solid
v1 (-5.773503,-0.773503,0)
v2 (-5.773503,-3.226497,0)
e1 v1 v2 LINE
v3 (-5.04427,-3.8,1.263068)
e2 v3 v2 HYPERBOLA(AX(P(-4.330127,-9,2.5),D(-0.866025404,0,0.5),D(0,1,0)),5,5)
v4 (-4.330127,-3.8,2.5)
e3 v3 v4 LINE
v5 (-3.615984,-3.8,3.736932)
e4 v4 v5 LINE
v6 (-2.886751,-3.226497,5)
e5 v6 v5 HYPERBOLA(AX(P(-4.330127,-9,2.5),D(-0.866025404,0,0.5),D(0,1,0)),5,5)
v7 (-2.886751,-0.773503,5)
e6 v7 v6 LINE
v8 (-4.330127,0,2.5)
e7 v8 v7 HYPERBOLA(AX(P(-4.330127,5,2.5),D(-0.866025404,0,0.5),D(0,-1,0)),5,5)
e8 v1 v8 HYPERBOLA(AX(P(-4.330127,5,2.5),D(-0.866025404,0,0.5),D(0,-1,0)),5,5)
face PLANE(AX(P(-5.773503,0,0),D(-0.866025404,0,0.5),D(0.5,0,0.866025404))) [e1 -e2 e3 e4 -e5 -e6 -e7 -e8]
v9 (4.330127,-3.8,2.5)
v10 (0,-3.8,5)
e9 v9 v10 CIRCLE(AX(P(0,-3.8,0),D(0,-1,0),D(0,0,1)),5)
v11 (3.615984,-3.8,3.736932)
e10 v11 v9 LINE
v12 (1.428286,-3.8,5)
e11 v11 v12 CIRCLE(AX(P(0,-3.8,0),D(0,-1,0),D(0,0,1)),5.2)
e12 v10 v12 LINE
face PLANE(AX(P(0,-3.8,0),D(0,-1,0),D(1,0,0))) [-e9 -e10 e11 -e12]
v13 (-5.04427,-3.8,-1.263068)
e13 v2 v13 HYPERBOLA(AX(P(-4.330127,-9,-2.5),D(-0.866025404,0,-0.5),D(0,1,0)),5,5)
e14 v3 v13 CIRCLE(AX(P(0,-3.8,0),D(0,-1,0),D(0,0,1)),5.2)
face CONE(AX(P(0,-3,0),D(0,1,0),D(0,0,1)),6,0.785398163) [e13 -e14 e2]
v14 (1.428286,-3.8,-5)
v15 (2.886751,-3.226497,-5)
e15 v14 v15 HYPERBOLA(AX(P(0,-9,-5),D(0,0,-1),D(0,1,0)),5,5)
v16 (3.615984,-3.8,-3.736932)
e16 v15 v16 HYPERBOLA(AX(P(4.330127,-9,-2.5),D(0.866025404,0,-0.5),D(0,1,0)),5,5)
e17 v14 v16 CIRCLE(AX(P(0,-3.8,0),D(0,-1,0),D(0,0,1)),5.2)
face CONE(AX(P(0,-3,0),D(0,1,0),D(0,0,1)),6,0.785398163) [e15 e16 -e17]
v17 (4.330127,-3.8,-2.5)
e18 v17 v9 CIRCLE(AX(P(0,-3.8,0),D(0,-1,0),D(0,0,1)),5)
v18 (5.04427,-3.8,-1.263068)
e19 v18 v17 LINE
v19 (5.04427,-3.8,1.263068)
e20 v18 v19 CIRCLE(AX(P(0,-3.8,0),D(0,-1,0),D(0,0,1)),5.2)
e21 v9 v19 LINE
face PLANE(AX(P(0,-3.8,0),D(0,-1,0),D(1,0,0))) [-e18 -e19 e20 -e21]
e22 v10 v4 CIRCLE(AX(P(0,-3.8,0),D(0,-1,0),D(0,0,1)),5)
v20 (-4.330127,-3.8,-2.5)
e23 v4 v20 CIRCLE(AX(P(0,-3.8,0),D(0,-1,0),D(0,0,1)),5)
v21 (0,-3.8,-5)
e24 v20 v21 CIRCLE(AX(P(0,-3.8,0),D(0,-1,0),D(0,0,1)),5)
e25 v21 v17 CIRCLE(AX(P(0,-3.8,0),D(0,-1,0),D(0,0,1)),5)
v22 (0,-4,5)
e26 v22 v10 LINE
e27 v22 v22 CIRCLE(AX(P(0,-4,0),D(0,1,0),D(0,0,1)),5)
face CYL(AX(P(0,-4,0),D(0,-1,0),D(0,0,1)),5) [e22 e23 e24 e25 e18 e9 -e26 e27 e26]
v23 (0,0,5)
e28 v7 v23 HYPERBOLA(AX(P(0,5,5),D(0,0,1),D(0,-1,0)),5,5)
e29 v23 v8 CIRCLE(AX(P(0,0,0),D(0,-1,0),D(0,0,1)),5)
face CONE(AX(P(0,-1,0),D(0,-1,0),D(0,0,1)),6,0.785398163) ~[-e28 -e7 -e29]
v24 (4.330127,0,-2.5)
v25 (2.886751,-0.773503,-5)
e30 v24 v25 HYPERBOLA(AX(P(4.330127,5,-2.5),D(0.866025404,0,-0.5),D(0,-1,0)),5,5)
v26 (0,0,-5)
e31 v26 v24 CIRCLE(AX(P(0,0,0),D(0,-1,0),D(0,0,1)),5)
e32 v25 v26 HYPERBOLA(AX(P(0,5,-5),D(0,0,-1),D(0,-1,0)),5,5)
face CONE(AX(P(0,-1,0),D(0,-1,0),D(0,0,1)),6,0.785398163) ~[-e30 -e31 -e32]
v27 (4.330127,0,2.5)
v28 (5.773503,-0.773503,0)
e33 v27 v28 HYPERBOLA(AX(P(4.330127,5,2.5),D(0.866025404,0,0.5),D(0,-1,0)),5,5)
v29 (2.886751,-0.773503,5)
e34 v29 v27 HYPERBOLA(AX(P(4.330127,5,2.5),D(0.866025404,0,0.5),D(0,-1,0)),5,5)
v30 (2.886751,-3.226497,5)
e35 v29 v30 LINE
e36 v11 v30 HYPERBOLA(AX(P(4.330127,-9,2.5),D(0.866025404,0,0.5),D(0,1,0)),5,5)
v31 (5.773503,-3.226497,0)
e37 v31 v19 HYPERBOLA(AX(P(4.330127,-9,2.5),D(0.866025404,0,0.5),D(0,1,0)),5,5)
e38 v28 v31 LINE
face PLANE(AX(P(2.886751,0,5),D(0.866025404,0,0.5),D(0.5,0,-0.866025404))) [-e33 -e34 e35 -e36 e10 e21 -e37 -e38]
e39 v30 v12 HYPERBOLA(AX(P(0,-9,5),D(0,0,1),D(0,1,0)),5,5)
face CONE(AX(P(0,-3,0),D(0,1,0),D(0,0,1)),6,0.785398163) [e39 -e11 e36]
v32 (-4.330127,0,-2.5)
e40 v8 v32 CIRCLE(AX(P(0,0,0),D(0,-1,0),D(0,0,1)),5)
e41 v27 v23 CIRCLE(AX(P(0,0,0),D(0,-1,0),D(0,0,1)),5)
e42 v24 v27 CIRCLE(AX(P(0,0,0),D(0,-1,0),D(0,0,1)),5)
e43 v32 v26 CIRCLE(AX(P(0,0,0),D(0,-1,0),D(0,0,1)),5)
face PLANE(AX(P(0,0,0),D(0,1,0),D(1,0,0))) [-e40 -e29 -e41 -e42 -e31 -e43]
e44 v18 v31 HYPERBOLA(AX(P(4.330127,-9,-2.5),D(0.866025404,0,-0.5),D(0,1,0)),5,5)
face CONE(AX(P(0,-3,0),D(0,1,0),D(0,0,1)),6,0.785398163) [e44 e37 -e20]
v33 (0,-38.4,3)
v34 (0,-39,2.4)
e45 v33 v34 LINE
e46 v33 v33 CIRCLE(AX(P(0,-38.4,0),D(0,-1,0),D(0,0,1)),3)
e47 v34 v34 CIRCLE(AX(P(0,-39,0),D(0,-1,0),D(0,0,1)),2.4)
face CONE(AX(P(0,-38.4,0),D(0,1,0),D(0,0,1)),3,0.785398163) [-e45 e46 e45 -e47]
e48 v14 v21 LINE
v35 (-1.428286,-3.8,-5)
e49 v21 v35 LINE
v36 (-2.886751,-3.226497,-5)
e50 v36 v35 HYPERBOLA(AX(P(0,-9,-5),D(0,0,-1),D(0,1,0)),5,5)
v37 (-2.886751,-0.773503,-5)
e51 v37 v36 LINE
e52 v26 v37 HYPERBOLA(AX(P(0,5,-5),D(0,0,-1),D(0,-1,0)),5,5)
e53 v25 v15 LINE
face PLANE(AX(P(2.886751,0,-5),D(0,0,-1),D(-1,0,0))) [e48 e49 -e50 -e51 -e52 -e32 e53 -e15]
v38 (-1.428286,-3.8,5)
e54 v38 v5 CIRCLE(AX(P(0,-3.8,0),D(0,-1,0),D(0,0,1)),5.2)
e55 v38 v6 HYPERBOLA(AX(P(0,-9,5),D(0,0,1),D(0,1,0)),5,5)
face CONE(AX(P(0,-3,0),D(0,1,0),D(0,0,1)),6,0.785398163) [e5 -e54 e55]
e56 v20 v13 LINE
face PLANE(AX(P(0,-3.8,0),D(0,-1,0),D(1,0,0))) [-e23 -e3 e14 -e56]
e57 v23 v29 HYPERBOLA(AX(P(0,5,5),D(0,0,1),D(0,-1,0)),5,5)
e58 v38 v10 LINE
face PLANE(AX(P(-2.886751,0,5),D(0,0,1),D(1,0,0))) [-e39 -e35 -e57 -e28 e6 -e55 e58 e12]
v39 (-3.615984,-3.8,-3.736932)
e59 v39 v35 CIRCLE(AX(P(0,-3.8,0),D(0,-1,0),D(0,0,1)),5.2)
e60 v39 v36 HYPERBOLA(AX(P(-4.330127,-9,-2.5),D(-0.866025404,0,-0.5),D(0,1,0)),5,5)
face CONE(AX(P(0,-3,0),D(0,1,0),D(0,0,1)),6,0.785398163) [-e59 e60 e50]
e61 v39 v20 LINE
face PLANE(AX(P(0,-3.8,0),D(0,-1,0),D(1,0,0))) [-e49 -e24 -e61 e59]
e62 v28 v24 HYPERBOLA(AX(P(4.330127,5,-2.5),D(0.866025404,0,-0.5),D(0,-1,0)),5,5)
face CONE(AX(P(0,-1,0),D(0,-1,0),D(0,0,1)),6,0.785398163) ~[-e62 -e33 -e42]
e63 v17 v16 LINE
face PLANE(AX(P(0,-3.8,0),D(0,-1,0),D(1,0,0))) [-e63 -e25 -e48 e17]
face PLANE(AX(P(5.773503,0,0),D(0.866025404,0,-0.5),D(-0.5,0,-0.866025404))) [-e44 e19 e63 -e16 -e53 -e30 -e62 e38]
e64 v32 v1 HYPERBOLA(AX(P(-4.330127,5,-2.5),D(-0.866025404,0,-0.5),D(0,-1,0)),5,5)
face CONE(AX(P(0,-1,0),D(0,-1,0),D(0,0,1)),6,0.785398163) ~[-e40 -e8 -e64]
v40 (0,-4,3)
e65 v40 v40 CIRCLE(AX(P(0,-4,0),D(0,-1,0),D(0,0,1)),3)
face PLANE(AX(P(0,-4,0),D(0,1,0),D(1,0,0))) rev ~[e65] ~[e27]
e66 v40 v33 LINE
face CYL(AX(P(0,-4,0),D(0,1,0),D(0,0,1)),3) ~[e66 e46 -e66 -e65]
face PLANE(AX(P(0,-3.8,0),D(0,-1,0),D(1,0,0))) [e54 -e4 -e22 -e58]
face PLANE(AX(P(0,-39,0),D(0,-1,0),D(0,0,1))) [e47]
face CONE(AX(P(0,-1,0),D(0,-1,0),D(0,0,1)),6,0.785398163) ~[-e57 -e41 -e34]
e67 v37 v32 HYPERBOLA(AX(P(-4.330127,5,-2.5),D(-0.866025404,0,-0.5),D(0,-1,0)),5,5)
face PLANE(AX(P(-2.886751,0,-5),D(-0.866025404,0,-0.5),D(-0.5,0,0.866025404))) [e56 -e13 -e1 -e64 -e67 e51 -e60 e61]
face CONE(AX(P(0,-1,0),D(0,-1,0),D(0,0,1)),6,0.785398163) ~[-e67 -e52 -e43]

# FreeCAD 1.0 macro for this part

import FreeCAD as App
import Part
import Sketcher
Q = App.Units.Quantity


def edges_at(feature, points):
    """Names of the edges that pass closest to the given points."""
    edges = feature.Shape.Edges
    near = lambda p: min(range(len(edges)), key=lambda i: edges[i].distToShape(Part.Vertex(*p))[0])
    return sorted({f"Edge{near(p) + 1}" for p in points})


def add_polygon(sketch, points):
    """Adds a closed chain of lines whose ends are joined by coincident constraints."""
    first, n = sketch.GeometryCount, len(points)
    for a, b in zip(points, points[1:] + points[:1]):
        sketch.addGeometry(Part.LineSegment(App.Vector(*a, 0), App.Vector(*b, 0)), False)
    for i in range(n):
        sketch.addConstraint(Sketcher.Constraint("Coincident", first + i, 2, first + (i + 1) % n, 1))

doc = App.newDocument("Part")
body = doc.addObject("PartDesign::Body", "Body")

# Sketch on XZ plane
sketch1 = body.newObject("Sketcher::SketchObject", "Sketch")
sketch1.AttachmentSupport = (doc.getObject("XZ_Plane"), [""])
sketch1.MapMode = "FlatFace"
add_polygon(sketch1, [(5.773503, 0), (2.886751, -5), (-2.886751, -5), (-5.773503, 0), (-2.886751, 5), (2.886751, 5)])  # lines 0-5
sketch1.addConstraint([
    Sketcher.Constraint("Horizontal", 1),
    Sketcher.Constraint("Horizontal", 4),
    Sketcher.Constraint("Symmetric", 0, 2, 3, 2, -1, 1),
    Sketcher.Constraint("Symmetric", 2, 2, 5, 2, -1, 1),
    Sketcher.Constraint("PointOnObject", 2, 2, -1),
    Sketcher.Constraint("Parallel", 2, 5),
    Sketcher.Constraint("Vertical", 1, 2, 3, 2),
    Sketcher.Constraint("Angle", 0, Q("-120 deg")),
    Sketcher.Constraint("DistanceY", 0, 2, -1, 1, Q("5 mm")),
    Sketcher.Constraint("DistanceX", 1, 2, 1, 1, Q("5.773503 mm")),
])
pad1 = body.newObject("PartDesign::Pad", "Pad")
pad1.Profile = sketch1
pad1.Length = 4

# Sketch on YZ plane
sketch2 = body.newObject("Sketcher::SketchObject", "Sketch001")
sketch2.AttachmentSupport = (doc.getObject("YZ_Plane"), [""])
sketch2.MapMode = "FlatFace"
add_polygon(sketch2, [(0, 5), (0, 6), (-1, 6)])  # lines 0-2
add_polygon(sketch2, [(-4, 5), (-3, 6), (-4, 6)])  # lines 3-5
sketch2.addConstraint([
    Sketcher.Constraint("Vertical", 0),
    Sketcher.Constraint("Horizontal", 1),
    Sketcher.Constraint("Horizontal", 4),
    Sketcher.Constraint("Vertical", 5),
    Sketcher.Constraint("PointOnObject", 0, 2, -2),
    Sketcher.Constraint("Perpendicular", 2, 3),
    Sketcher.Constraint("Horizontal", 1, 2, 3, 2),
    Sketcher.Constraint("Horizontal", 2, 2, 5, 2),
    Sketcher.Constraint("Equal", 1, 4),
    Sketcher.Constraint("DistanceX", 1, 2, 1, 1, Q("1 mm")),
    Sketcher.Constraint("DistanceY", -1, 1, 0, 2, Q("6 mm")),
    Sketcher.Constraint("DistanceX", 3, 2, -1, 1, Q("3 mm")),
])
groove = body.newObject("PartDesign::Groove", "Groove")
groove.Profile = sketch2
groove.ReferenceAxis = (sketch2, ["H_Axis"])
groove.Angle = 360

# Sketch on XZ plane
sketch3 = body.newObject("Sketcher::SketchObject", "Sketch002")
sketch3.AttachmentSupport = (doc.getObject("XZ_Plane"), [""])
sketch3.MapMode = "FlatFace"
sketch3.AttachmentOffset = App.Placement(App.Vector(0, 0, 4), App.Rotation())
add_polygon(sketch3, [(-8.353, 7.579), (-8.353, -7.579), (8.353, -7.579), (8.353, 7.579)])  # lines 0-3
sketch3.addGeometry(Part.Circle(App.Vector(0, 0, 0), App.Vector(0, 0, 1), 5), False)  # 4
sketch3.addConstraint([
    Sketcher.Constraint("Vertical", 0),
    Sketcher.Constraint("Horizontal", 1),
    Sketcher.Constraint("Vertical", 2),
    Sketcher.Constraint("Horizontal", 3),
    Sketcher.Constraint("Coincident", 4, 3, -1, 1),
    Sketcher.Constraint("Symmetric", 0, 2, 2, 2, -1, 1),
    Sketcher.Constraint("Diameter", 4, Q("10 mm")),
    Sketcher.Constraint("DistanceX", 1, 1, 1, 2, Q("16.706 mm")),
    Sketcher.Constraint("DistanceY", 0, 2, 0, 1, Q("15.158 mm")),
])
pocket1 = body.newObject("PartDesign::Pocket", "Pocket")
pocket1.Profile = sketch3
pocket1.Length = 0.2

# Sketch on XZ plane
sketch4 = body.newObject("Sketcher::SketchObject", "Sketch003")
sketch4.AttachmentSupport = (doc.getObject("XZ_Plane"), [""])
sketch4.MapMode = "FlatFace"
sketch4.AttachmentOffset = App.Placement(App.Vector(0, 0, 4), App.Rotation())
sketch4.addGeometry(Part.Circle(App.Vector(0, 0, 0), App.Vector(0, 0, 1), 3), False)
sketch4.addConstraint([
    Sketcher.Constraint("Coincident", 0, 3, -1, 1),
    Sketcher.Constraint("Diameter", 0, Q("6 mm")),
])
pad2 = body.newObject("PartDesign::Pad", "Pad001")
pad2.Profile = sketch4
pad2.Length = 35
doc.recompute()

chamfer = body.newObject("PartDesign::Chamfer", "Chamfer")
chamfer.Base = (pad2, edges_at(pad2, [(0, -39, -3)]))
chamfer.Size = 0.6

doc.recompute()
